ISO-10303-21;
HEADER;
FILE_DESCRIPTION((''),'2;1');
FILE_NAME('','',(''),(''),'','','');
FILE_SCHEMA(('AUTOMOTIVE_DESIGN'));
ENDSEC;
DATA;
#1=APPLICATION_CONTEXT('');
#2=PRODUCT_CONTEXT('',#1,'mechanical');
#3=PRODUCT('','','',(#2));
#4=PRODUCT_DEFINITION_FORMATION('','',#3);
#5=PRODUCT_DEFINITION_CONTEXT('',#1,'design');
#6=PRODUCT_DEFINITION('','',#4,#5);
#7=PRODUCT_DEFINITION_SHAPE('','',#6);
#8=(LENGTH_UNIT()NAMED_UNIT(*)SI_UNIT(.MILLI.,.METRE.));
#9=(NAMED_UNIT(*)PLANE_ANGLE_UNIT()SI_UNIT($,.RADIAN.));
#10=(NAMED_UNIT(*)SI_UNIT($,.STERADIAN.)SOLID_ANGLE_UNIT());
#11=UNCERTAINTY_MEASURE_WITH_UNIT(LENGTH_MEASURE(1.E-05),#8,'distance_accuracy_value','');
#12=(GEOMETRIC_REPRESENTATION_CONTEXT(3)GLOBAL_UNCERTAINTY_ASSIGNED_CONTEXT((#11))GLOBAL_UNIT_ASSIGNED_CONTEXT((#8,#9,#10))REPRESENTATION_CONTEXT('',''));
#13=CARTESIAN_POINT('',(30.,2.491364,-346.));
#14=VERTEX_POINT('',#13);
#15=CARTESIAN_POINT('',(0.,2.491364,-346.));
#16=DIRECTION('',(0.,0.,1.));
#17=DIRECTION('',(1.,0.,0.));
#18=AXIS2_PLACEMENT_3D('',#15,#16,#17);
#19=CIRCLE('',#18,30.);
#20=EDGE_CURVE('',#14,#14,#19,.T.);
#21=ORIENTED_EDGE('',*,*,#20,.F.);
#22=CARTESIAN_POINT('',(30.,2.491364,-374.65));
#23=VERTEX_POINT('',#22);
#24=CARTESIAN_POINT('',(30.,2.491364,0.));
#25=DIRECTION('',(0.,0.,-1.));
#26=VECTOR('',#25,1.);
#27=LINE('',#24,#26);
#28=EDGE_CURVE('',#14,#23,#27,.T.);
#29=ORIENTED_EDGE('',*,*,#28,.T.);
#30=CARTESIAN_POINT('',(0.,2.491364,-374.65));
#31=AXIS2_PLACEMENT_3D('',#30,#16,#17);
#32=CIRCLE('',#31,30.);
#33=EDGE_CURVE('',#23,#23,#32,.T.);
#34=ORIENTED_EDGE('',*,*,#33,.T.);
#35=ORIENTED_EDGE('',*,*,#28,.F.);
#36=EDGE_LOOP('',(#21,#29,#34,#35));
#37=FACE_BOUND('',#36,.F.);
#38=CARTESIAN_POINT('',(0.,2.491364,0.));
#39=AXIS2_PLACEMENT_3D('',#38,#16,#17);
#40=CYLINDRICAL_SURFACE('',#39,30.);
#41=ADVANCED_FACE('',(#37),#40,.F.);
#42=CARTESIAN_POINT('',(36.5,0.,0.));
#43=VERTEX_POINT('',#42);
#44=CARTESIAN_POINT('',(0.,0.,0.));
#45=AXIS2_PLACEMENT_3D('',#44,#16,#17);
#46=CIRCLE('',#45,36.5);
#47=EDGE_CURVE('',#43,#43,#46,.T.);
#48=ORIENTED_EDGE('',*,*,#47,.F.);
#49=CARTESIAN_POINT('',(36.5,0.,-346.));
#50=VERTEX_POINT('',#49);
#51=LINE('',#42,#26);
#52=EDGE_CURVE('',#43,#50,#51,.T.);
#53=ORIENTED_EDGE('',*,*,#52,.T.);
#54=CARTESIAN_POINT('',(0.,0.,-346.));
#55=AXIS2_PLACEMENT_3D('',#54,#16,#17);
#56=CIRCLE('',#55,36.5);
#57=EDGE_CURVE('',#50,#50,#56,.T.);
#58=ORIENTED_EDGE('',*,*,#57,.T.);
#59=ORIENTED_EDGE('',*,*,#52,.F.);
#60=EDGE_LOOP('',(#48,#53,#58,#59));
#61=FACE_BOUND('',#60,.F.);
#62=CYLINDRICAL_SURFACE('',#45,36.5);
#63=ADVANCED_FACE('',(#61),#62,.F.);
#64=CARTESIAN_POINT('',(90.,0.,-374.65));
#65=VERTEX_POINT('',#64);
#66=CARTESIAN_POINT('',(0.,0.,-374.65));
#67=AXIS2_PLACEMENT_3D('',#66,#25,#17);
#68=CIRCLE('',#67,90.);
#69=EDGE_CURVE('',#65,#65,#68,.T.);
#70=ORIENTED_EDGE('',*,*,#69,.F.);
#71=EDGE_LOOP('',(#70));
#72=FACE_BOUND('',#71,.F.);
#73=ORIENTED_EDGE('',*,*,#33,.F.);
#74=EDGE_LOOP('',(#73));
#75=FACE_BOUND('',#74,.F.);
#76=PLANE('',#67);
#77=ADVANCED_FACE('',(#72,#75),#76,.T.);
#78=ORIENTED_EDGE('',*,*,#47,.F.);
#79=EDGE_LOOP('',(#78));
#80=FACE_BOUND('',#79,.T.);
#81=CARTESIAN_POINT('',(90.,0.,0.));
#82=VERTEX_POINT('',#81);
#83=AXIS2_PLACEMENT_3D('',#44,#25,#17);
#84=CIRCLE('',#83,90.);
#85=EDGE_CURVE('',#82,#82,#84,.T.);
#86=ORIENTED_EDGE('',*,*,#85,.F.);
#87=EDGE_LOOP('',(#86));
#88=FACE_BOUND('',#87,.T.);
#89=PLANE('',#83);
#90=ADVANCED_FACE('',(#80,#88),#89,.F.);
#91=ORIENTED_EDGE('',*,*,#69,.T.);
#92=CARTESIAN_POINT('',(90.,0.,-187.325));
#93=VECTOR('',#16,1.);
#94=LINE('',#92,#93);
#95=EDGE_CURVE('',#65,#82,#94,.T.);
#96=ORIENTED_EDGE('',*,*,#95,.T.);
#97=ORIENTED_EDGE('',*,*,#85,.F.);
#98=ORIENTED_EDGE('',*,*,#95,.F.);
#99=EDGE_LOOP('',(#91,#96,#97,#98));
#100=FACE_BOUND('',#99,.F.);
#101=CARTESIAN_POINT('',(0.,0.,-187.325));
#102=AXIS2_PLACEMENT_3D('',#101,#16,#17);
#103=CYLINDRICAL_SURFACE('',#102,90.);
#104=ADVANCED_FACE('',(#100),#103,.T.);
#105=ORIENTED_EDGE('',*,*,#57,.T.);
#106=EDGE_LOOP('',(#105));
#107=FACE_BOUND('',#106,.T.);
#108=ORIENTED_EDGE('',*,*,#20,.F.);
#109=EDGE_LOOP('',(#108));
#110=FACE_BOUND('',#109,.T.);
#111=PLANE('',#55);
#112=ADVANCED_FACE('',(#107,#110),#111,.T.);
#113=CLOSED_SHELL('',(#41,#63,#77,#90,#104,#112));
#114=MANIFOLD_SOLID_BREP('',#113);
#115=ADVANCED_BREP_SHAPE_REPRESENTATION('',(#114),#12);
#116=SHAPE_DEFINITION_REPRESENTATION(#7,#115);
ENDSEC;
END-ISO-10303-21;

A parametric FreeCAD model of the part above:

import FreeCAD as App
import Part
import Sketcher
from FreeCAD import Vector


def add_polygon(sketch, points):
    """Adds a closed chain of lines whose ends are joined by coincident constraints."""
    first, n = sketch.GeometryCount, len(points)
    for a, b in zip(points, points[1:] + points[:1]):
        sketch.addGeometry(Part.LineSegment(App.Vector(*a, 0), App.Vector(*b, 0)), False)
    for i in range(n):
        sketch.addConstraint(Sketcher.Constraint("Coincident", first + i, 2, first + (i + 1) % n, 1))

doc = App.newDocument("Part")
body = doc.addObject("PartDesign::Body", "Body")

sketch1 = body.newObject("Sketcher::SketchObject", "Sketch")
sketch1.AttachmentSupport = (doc.getObject("XZ_Plane"), [""])
sketch1.MapMode = "FlatFace"
add_polygon(sketch1, [(0, 0), (0, -375), (90, -375), (90, 0)])
sketch1.addConstraint(Sketcher.Constraint("Vertical", 0))
sketch1.addConstraint(Sketcher.Constraint("Horizontal", 1))
sketch1.addConstraint(Sketcher.Constraint("Vertical", 2))
sketch1.addConstraint(Sketcher.Constraint("Horizontal", 3))
sketch1.addConstraint(Sketcher.Constraint("Coincident", 3, 2, -1, 1))
sketch1.addConstraint(Sketcher.Constraint("DistanceX", 1, 1, 1, 2, 90.0))
sketch1.addConstraint(Sketcher.Constraint("DistanceY", 0, 2, 0, 1, 374.65))
revolution = body.newObject("PartDesign::Revolution", "Revolution")
revolution.Profile = sketch1
revolution.ReferenceAxis = (sketch1, ["V_Axis"])
revolution.Angle = 360

sketch2 = body.newObject("Sketcher::SketchObject", "Sketch001")
sketch2.AttachmentSupport = (doc.getObject("XY_Plane"), [""])
sketch2.MapMode = "FlatFace"
sketch2.addGeometry(Part.Circle(Vector(0, 2, 0), Vector(0, 0, 1), 30), False)
sketch2.addConstraint(Sketcher.Constraint("PointOnObject", 0, 3, -2))
sketch2.addConstraint(Sketcher.Constraint("Diameter", 0, 60.0))
sketch2.addConstraint(Sketcher.Constraint("DistanceY", -1, 1, 0, 3, 2.491364))
pocket1 = body.newObject("PartDesign::Pocket", "Pocket")
pocket1.Profile = sketch2
pocket1.Type = "ThroughAll"

sketch3 = body.newObject("Sketcher::SketchObject", "Sketch002")
sketch3.AttachmentSupport = (doc.getObject("XY_Plane"), [""])
sketch3.MapMode = "FlatFace"
sketch3.addGeometry(Part.Circle(Vector(0, 0, 0), Vector(0, 0, 1), 36), False)
sketch3.addGeometry(Part.Circle(Vector(0, 2, 0), Vector(0, 0, 1), 30), False)
sketch3.addConstraint(Sketcher.Constraint("Coincident", 0, 3, -1, 1))
sketch3.addConstraint(Sketcher.Constraint("PointOnObject", 1, 3, -2))
sketch3.addConstraint(Sketcher.Constraint("Diameter", 0, 73.0))
sketch3.addConstraint(Sketcher.Constraint("Diameter", 1, 60.0))
sketch3.addConstraint(Sketcher.Constraint("DistanceY", -1, 1, 1, 3, 2.491364))
pocket2 = body.newObject("PartDesign::Pocket", "Pocket001")
pocket2.Profile = sketch3
pocket2.Length = 346

doc.recompute()
